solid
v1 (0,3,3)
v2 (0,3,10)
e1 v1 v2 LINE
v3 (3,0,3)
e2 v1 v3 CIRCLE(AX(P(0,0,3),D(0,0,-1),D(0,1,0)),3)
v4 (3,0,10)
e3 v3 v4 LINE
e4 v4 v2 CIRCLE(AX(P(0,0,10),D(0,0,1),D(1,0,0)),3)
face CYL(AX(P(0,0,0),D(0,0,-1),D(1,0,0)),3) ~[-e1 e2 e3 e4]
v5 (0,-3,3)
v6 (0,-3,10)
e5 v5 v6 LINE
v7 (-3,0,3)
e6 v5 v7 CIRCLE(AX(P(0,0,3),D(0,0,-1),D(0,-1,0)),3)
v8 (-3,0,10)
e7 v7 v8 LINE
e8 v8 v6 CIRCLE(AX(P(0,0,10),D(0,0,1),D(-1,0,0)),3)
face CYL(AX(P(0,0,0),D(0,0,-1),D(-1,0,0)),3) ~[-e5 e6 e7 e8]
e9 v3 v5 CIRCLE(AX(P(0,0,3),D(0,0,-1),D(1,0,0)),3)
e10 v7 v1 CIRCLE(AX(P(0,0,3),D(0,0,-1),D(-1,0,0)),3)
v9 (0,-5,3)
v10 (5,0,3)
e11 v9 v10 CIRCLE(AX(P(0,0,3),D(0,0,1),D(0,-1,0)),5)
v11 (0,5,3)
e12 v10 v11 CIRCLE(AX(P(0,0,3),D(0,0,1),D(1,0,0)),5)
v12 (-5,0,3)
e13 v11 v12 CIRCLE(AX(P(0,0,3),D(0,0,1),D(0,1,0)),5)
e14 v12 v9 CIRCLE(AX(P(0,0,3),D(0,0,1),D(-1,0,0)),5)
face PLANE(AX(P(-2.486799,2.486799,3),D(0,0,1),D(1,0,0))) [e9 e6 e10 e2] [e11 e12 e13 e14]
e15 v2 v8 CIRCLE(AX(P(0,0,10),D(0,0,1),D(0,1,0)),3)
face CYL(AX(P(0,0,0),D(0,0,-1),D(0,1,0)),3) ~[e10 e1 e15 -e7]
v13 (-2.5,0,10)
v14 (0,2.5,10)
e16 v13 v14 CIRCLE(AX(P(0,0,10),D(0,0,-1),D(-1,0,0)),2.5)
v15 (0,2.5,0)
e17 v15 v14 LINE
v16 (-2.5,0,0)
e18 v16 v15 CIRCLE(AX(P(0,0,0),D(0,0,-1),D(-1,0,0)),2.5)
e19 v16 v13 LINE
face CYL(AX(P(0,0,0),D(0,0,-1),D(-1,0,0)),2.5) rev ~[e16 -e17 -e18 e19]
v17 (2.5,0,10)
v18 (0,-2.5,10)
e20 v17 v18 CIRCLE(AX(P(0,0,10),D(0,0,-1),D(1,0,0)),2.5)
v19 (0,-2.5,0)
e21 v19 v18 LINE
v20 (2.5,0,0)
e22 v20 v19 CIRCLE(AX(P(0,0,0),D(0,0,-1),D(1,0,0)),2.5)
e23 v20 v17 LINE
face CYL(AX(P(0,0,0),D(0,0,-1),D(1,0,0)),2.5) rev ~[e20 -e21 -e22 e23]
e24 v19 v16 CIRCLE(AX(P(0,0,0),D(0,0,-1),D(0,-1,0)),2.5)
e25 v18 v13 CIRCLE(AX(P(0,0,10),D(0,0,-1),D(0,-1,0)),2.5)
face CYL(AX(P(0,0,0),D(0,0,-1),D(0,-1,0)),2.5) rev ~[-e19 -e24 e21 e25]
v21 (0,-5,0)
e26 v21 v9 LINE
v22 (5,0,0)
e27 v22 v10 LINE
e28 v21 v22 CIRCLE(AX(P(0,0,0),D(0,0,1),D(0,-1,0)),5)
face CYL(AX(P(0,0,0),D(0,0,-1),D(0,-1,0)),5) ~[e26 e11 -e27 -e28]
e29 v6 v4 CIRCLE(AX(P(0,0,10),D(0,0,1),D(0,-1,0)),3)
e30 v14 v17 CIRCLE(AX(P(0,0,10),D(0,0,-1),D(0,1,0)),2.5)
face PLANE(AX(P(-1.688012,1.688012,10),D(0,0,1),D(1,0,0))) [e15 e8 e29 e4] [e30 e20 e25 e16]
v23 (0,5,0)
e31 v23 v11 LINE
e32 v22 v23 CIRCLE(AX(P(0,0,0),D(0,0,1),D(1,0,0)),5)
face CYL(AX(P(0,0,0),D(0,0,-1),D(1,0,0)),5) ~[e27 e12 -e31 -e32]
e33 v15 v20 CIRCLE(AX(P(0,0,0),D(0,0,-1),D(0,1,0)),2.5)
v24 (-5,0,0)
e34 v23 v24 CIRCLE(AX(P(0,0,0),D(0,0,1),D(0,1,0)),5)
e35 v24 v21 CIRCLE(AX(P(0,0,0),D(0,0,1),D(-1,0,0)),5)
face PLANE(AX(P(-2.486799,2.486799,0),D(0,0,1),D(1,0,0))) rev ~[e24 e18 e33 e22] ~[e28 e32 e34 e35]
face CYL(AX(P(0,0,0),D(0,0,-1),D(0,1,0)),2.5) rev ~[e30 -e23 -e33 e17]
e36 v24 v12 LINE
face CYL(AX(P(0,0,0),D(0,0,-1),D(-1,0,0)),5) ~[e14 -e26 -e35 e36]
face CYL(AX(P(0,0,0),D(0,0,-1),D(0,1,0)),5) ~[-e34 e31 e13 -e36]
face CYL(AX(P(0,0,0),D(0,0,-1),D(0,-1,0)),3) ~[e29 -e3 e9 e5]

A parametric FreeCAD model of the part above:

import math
import FreeCAD as App
import Part
import Sketcher

V = App.Vector
Q = App.Units.Quantity

doc = App.newDocument("Part")
body = doc.addObject("PartDesign::Body", "Body")

sketch1 = doc.addObject("Sketcher::SketchObject", "Sketch")
body.addObject(sketch1)
sketch1.AttachmentSupport = (doc.XY_Plane, [""])
sketch1.MapMode = "FlatFace"
sketch1.addGeometry([
    Part.ArcOfCircle(Part.Circle(V(0, 0, 0), V(0, 0, 1), 3), math.radians(90), math.radians(180)),
    Part.ArcOfCircle(Part.Circle(V(0, 0, 0), V(0, 0, 1), 3), math.radians(180), math.radians(270)),
    Part.ArcOfCircle(Part.Circle(V(0, 0, 0), V(0, 0, 1), 3), math.radians(-90), math.radians(0)),
    Part.ArcOfCircle(Part.Circle(V(0, 0, 0), V(0, 0, 1), 3), math.radians(0), math.radians(90)),
    Part.ArcOfCircle(Part.Circle(V(0, 0, 0), V(0, 0, 1), 2.5), math.radians(-90), math.radians(0)),
    Part.ArcOfCircle(Part.Circle(V(0, 0, 0), V(0, 0, 1), 2.5), math.radians(180), math.radians(270)),
    Part.ArcOfCircle(Part.Circle(V(0, 0, 0), V(0, 0, 1), 2.5), math.radians(90), math.radians(180)),
    Part.ArcOfCircle(Part.Circle(V(0, 0, 0), V(0, 0, 1), 2.5), math.radians(0), math.radians(90)),
], False)
sketch1.addConstraint([
    Sketcher.Constraint("Tangent", 0, 2, 1, 1),
    Sketcher.Constraint("Tangent", 1, 2, 2, 1),
    Sketcher.Constraint("Tangent", 2, 2, 3, 1),
    Sketcher.Constraint("Tangent", 3, 2, 0, 1),
    Sketcher.Constraint("Tangent", 4, 1, 5, 2),
    Sketcher.Constraint("Tangent", 5, 1, 6, 2),
    Sketcher.Constraint("Tangent", 6, 1, 7, 2),
    Sketcher.Constraint("Tangent", 7, 1, 4, 2),
    Sketcher.Constraint("Coincident", 0, 3, -1, 1),
    Sketcher.Constraint("Coincident", 4, 3, -1, 1),
    Sketcher.Constraint("Equal", 0, 1),
    Sketcher.Constraint("Equal", 4, 5),
    Sketcher.Constraint("PointOnObject", 0, 2, -1),
    Sketcher.Constraint("PointOnObject", 1, 2, -2),
    Sketcher.Constraint("PointOnObject", 2, 2, -1),
    Sketcher.Constraint("PointOnObject", 3, 2, -2),
    Sketcher.Constraint("PointOnObject", 4, 1, -2),
    Sketcher.Constraint("PointOnObject", 5, 1, -1),
    Sketcher.Constraint("PointOnObject", 6, 1, -2),
    Sketcher.Constraint("PointOnObject", 7, 1, -1),
    Sketcher.Constraint("Radius", 0, Q("3 mm")),
    Sketcher.Constraint("Radius", 4, Q("2.5 mm")),
])
pad1 = doc.addObject("PartDesign::Pad", "Pad")
body.addObject(pad1)
pad1.Profile = sketch1
pad1.Length = 10

sketch2 = doc.addObject("Sketcher::SketchObject", "Sketch001")
body.addObject(sketch2)
sketch2.AttachmentSupport = (doc.XY_Plane, [""])
sketch2.MapMode = "FlatFace"
sketch2.addGeometry([
    Part.ArcOfCircle(Part.Circle(V(0, 0, 0), V(0, 0, 1), 5), math.radians(90), math.radians(180)),
    Part.ArcOfCircle(Part.Circle(V(0, 0, 0), V(0, 0, 1), 5), math.radians(180), math.radians(270)),
    Part.ArcOfCircle(Part.Circle(V(0, 0, 0), V(0, 0, 1), 5), math.radians(-90), math.radians(0)),
    Part.ArcOfCircle(Part.Circle(V(0, 0, 0), V(0, 0, 1), 5), math.radians(0), math.radians(90)),
    Part.ArcOfCircle(Part.Circle(V(0, 0, 0), V(0, 0, 1), 3), math.radians(-90), math.radians(0)),
    Part.ArcOfCircle(Part.Circle(V(0, 0, 0), V(0, 0, 1), 3), math.radians(180), math.radians(270)),
    Part.ArcOfCircle(Part.Circle(V(0, 0, 0), V(0, 0, 1), 3), math.radians(90), math.radians(180)),
    Part.ArcOfCircle(Part.Circle(V(0, 0, 0), V(0, 0, 1), 3), math.radians(0), math.radians(90)),
], False)
sketch2.addConstraint([
    Sketcher.Constraint("Tangent", 0, 2, 1, 1),
    Sketcher.Constraint("Tangent", 1, 2, 2, 1),
    Sketcher.Constraint("Tangent", 2, 2, 3, 1),
    Sketcher.Constraint("Tangent", 3, 2, 0, 1),
    Sketcher.Constraint("Tangent", 4, 1, 5, 2),
    Sketcher.Constraint("Tangent", 5, 1, 6, 2),
    Sketcher.Constraint("Tangent", 6, 1, 7, 2),
    Sketcher.Constraint("Tangent", 7, 1, 4, 2),
    Sketcher.Constraint("Coincident", 0, 3, -1, 1),
    Sketcher.Constraint("Coincident", 4, 3, -1, 1),
    Sketcher.Constraint("Equal", 0, 1),
    Sketcher.Constraint("Equal", 4, 5),
    Sketcher.Constraint("PointOnObject", 0, 2, -1),
    Sketcher.Constraint("PointOnObject", 1, 2, -2),
    Sketcher.Constraint("PointOnObject", 2, 2, -1),
    Sketcher.Constraint("PointOnObject", 3, 2, -2),
    Sketcher.Constraint("PointOnObject", 4, 1, -2),
    Sketcher.Constraint("PointOnObject", 5, 1, -1),
    Sketcher.Constraint("PointOnObject", 6, 1, -2),
    Sketcher.Constraint("PointOnObject", 7, 1, -1),
    Sketcher.Constraint("Radius", 0, Q("5 mm")),
    Sketcher.Constraint("Radius", 4, Q("3 mm")),
])
pad2 = doc.addObject("PartDesign::Pad", "Pad001")
body.addObject(pad2)
pad2.Profile = sketch2
pad2.Length = 3

doc.recompute()
